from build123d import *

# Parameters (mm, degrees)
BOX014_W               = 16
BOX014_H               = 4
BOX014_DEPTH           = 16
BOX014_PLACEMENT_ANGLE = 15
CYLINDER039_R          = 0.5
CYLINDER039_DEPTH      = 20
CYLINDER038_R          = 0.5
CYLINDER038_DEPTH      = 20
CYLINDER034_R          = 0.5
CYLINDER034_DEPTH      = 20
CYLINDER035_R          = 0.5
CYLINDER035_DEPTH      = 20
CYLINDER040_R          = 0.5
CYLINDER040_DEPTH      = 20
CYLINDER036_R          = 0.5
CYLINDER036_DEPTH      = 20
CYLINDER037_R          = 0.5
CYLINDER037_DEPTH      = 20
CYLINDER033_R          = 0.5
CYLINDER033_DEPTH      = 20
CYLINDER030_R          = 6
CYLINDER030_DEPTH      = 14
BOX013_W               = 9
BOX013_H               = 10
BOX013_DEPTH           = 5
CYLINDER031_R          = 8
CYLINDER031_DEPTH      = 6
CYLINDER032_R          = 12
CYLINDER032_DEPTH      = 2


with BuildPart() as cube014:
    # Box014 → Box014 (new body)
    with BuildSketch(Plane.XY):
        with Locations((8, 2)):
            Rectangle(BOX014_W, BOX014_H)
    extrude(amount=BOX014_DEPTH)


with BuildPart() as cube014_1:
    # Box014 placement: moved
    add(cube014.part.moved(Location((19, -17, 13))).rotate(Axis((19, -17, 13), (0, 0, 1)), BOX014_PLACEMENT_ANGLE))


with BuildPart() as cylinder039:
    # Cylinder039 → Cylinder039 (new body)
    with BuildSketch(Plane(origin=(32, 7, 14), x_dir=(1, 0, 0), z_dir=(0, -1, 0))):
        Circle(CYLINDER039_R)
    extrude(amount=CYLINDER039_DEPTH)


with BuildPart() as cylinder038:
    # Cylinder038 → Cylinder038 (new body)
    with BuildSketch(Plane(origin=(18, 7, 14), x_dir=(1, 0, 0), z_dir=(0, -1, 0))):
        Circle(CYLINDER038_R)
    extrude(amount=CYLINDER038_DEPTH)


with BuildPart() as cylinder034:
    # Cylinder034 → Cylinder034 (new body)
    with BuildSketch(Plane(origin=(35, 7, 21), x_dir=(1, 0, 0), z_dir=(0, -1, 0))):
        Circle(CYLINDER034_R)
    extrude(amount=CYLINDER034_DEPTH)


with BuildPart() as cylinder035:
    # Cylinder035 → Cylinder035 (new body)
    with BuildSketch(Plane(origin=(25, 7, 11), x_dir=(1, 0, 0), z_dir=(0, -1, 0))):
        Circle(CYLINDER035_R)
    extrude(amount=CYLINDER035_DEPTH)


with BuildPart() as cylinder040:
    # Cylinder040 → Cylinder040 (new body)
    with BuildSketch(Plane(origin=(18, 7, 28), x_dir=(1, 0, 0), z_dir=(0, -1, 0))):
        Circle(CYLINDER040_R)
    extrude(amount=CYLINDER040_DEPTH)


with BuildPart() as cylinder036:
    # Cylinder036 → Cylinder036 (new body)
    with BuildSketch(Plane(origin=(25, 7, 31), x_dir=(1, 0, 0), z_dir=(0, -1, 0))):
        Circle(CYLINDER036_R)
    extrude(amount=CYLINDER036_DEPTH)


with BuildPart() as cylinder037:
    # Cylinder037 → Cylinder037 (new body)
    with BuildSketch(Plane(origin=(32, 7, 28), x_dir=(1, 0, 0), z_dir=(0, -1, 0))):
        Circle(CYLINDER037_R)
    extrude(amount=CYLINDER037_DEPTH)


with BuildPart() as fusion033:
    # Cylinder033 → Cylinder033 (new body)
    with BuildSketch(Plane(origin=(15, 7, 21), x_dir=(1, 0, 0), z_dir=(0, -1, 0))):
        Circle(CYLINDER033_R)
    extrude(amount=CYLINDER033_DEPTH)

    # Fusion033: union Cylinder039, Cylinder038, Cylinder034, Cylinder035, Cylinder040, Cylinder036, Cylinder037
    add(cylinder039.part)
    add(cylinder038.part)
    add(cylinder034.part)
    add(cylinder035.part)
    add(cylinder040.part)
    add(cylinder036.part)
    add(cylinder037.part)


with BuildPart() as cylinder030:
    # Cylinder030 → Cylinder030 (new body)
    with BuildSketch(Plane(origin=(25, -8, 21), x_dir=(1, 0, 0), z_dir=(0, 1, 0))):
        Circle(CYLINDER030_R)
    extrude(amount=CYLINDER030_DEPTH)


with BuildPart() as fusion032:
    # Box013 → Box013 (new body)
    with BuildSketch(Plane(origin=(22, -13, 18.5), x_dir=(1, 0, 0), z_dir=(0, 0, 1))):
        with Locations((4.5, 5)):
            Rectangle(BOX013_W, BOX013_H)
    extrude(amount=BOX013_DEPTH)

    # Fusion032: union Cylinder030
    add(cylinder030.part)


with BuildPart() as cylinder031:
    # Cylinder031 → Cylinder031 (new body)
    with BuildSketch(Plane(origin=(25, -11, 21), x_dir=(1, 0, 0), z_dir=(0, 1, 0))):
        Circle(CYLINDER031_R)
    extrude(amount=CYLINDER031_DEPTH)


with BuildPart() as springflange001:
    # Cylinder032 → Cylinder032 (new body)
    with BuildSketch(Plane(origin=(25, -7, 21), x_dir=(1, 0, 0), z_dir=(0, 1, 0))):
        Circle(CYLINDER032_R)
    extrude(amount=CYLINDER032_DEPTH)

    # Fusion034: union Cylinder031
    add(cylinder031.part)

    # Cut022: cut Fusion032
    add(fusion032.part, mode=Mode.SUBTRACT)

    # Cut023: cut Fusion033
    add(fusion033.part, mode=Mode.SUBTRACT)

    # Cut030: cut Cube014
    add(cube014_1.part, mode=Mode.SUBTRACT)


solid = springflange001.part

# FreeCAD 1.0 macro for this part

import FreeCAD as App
import Part
import Sketcher
from FreeCAD import Vector
Q = App.Units.Quantity


def add_polygon(sketch, points):
    """Adds a closed chain of lines whose ends are joined by coincident constraints."""
    first, n = sketch.GeometryCount, len(points)
    for a, b in zip(points, points[1:] + points[:1]):
        sketch.addGeometry(Part.LineSegment(App.Vector(*a, 0), App.Vector(*b, 0)), False)
    for i in range(n):
        sketch.addConstraint(Sketcher.Constraint("Coincident", first + i, 2, first + (i + 1) % n, 1))

doc = App.newDocument("Part")
params = doc.addObject("Spreadsheet::Sheet", "Params")
for row, (alias, value) in enumerate([
    ("sketch1_width", "16 mm"),
    ("sketch1_height", "4 mm"),
    ("pad1_length", "16 mm"),
    ("sketch2_diameter", "1 mm"),
    ("pad2_length", "20 mm"),
    ("sketch3_diameter", "1 mm"),
    ("pad3_length", "20 mm"),
    ("sketch4_diameter", "1 mm"),
    ("pad4_length", "20 mm"),
    ("sketch5_diameter", "1 mm"),
    ("pad5_length", "20 mm"),
    ("sketch6_diameter", "1 mm"),
    ("pad6_length", "20 mm"),
    ("sketch7_diameter", "1 mm"),
    ("pad7_length", "20 mm"),
    ("sketch8_diameter", "1 mm"),
    ("pad8_length", "20 mm"),
    ("sketch9_diameter", "1 mm"),
    ("pad9_length", "20 mm"),
    ("sketch10_diameter", "12 mm"),
    ("pad10_length", "14 mm"),
    ("sketch11_width", "9 mm"),
    ("sketch11_height", "10 mm"),
    ("pad11_length", "5 mm"),
    ("sketch12_diameter", "16 mm"),
    ("pad12_length", "6 mm"),
    ("sketch13_diameter", "24 mm"),
    ("pad13_length", "2 mm"),
], start=1):
    params.set(f"A{row}", alias)
    params.set(f"B{row}", "=" + value)
    params.setAlias(f"B{row}", alias)

body = doc.addObject("PartDesign::Body", "Body")

# Sketch on XY plane
sketch1 = doc.addObject("Sketcher::SketchObject", "Sketch")
body.addObject(sketch1)
sketch1.AttachmentSupport = (doc.XY_Plane, [""])
sketch1.MapMode = "FlatFace"
add_polygon(sketch1, [(0, 4), (0, 0), (16, 0), (16, 4)])  # lines 0-3
sketch1.addConstraint(Sketcher.Constraint("Vertical", 0))
sketch1.addConstraint(Sketcher.Constraint("Horizontal", 1))
sketch1.addConstraint(Sketcher.Constraint("Vertical", 2))
sketch1.addConstraint(Sketcher.Constraint("Horizontal", 3))
sketch1.addConstraint(Sketcher.Constraint("Coincident", 0, 2, -1, 1))
sketch1.addConstraint(Sketcher.Constraint("DistanceX", 1, 1, 1, 2, Q("16 mm")))
sketch1.addConstraint(Sketcher.Constraint("DistanceY", 0, 2, 0, 1, Q("4 mm")))
sketch1.setExpression("Constraints[9]", "Params.sketch1_width")
sketch1.setExpression("Constraints[10]", "Params.sketch1_height")
pad1 = doc.addObject("PartDesign::Pad", "Pad")
body.addObject(pad1)
pad1.Profile = sketch1
pad1.setExpression("Length", "Params.pad1_length")
body2 = doc.addObject("PartDesign::Body", "Body001")
doc.recompute()

body.Placement = App.Placement(Vector(19, -17, 13), App.Rotation(Vector(0, 0, 1), 15))
boolean = doc.addObject("PartDesign::Boolean", "Boolean")
body2.addObject(boolean)
boolean.Type = "Fuse"
boolean.addObjects([body])
body3 = doc.addObject("PartDesign::Body", "Body002")

# Sketch on XZ plane
sketch2 = doc.addObject("Sketcher::SketchObject", "Sketch001")
body3.addObject(sketch2)
sketch2.AttachmentSupport = (doc.getObject("XZ_Plane002"), [""])
sketch2.MapMode = "FlatFace"
sketch2.AttachmentOffset = App.Placement(Vector(0, 0, -7), App.Rotation())
sketch2.addGeometry(Part.Circle(Vector(32, 14, 0), Vector(0, 0, 1), 0.5), False)
sketch2.addConstraint(Sketcher.Constraint("Diameter", 0, Q("1 mm")))
sketch2.addConstraint(Sketcher.Constraint("DistanceX", -1, 1, 0, 3, Q("32 mm")))
sketch2.addConstraint(Sketcher.Constraint("DistanceY", -1, 1, 0, 3, Q("14 mm")))
sketch2.setExpression("Constraints[0]", "Params.sketch2_diameter")
pad2 = doc.addObject("PartDesign::Pad", "Pad001")
body3.addObject(pad2)
pad2.Profile = sketch2
pad2.setExpression("Length", "Params.pad2_length")
body4 = doc.addObject("PartDesign::Body", "Body003")

# Sketch on XZ plane
sketch3 = doc.addObject("Sketcher::SketchObject", "Sketch002")
body4.addObject(sketch3)
sketch3.AttachmentSupport = (doc.getObject("XZ_Plane003"), [""])
sketch3.MapMode = "FlatFace"
sketch3.AttachmentOffset = App.Placement(Vector(0, 0, -7), App.Rotation())
sketch3.addGeometry(Part.Circle(Vector(18, 14, 0), Vector(0, 0, 1), 0.5), False)
sketch3.addConstraint(Sketcher.Constraint("Diameter", 0, Q("1 mm")))
sketch3.addConstraint(Sketcher.Constraint("DistanceX", -1, 1, 0, 3, Q("18 mm")))
sketch3.addConstraint(Sketcher.Constraint("DistanceY", -1, 1, 0, 3, Q("14 mm")))
sketch3.setExpression("Constraints[0]", "Params.sketch3_diameter")
pad3 = doc.addObject("PartDesign::Pad", "Pad002")
body4.addObject(pad3)
pad3.Profile = sketch3
pad3.setExpression("Length", "Params.pad3_length")
body5 = doc.addObject("PartDesign::Body", "Body004")

# Sketch on XZ plane
sketch4 = doc.addObject("Sketcher::SketchObject", "Sketch003")
body5.addObject(sketch4)
sketch4.AttachmentSupport = (doc.getObject("XZ_Plane004"), [""])
sketch4.MapMode = "FlatFace"
sketch4.AttachmentOffset = App.Placement(Vector(0, 0, -7), App.Rotation())
sketch4.addGeometry(Part.Circle(Vector(35, 21, 0), Vector(0, 0, 1), 0.5), False)
sketch4.addConstraint(Sketcher.Constraint("Diameter", 0, Q("1 mm")))
sketch4.addConstraint(Sketcher.Constraint("DistanceX", -1, 1, 0, 3, Q("35 mm")))
sketch4.addConstraint(Sketcher.Constraint("DistanceY", -1, 1, 0, 3, Q("21 mm")))
sketch4.setExpression("Constraints[0]", "Params.sketch4_diameter")
pad4 = doc.addObject("PartDesign::Pad", "Pad003")
body5.addObject(pad4)
pad4.Profile = sketch4
pad4.setExpression("Length", "Params.pad4_length")
body6 = doc.addObject("PartDesign::Body", "Body005")

# Sketch on XZ plane
sketch5 = doc.addObject("Sketcher::SketchObject", "Sketch004")
body6.addObject(sketch5)
sketch5.AttachmentSupport = (doc.getObject("XZ_Plane005"), [""])
sketch5.MapMode = "FlatFace"
sketch5.AttachmentOffset = App.Placement(Vector(0, 0, -7), App.Rotation())
sketch5.addGeometry(Part.Circle(Vector(25, 11, 0), Vector(0, 0, 1), 0.5), False)
sketch5.addConstraint(Sketcher.Constraint("Diameter", 0, Q("1 mm")))
sketch5.addConstraint(Sketcher.Constraint("DistanceX", -1, 1, 0, 3, Q("25 mm")))
sketch5.addConstraint(Sketcher.Constraint("DistanceY", -1, 1, 0, 3, Q("11 mm")))
sketch5.setExpression("Constraints[0]", "Params.sketch5_diameter")
pad5 = doc.addObject("PartDesign::Pad", "Pad004")
body6.addObject(pad5)
pad5.Profile = sketch5
pad5.setExpression("Length", "Params.pad5_length")
body7 = doc.addObject("PartDesign::Body", "Body006")

# Sketch on XZ plane
sketch6 = doc.addObject("Sketcher::SketchObject", "Sketch005")
body7.addObject(sketch6)
sketch6.AttachmentSupport = (doc.getObject("XZ_Plane006"), [""])
sketch6.MapMode = "FlatFace"
sketch6.AttachmentOffset = App.Placement(Vector(0, 0, -7), App.Rotation())
sketch6.addGeometry(Part.Circle(Vector(18, 28, 0), Vector(0, 0, 1), 0.5), False)
sketch6.addConstraint(Sketcher.Constraint("Diameter", 0, Q("1 mm")))
sketch6.addConstraint(Sketcher.Constraint("DistanceX", -1, 1, 0, 3, Q("18 mm")))
sketch6.addConstraint(Sketcher.Constraint("DistanceY", -1, 1, 0, 3, Q("28 mm")))
sketch6.setExpression("Constraints[0]", "Params.sketch6_diameter")
pad6 = doc.addObject("PartDesign::Pad", "Pad005")
body7.addObject(pad6)
pad6.Profile = sketch6
pad6.setExpression("Length", "Params.pad6_length")
body8 = doc.addObject("PartDesign::Body", "Body007")

# Sketch on XZ plane
sketch7 = doc.addObject("Sketcher::SketchObject", "Sketch006")
body8.addObject(sketch7)
sketch7.AttachmentSupport = (doc.getObject("XZ_Plane007"), [""])
sketch7.MapMode = "FlatFace"
sketch7.AttachmentOffset = App.Placement(Vector(0, 0, -7), App.Rotation())
sketch7.addGeometry(Part.Circle(Vector(25, 31, 0), Vector(0, 0, 1), 0.5), False)
sketch7.addConstraint(Sketcher.Constraint("Diameter", 0, Q("1 mm")))
sketch7.addConstraint(Sketcher.Constraint("DistanceX", -1, 1, 0, 3, Q("25 mm")))
sketch7.addConstraint(Sketcher.Constraint("DistanceY", -1, 1, 0, 3, Q("31 mm")))
sketch7.setExpression("Constraints[0]", "Params.sketch7_diameter")
pad7 = doc.addObject("PartDesign::Pad", "Pad006")
body8.addObject(pad7)
pad7.Profile = sketch7
pad7.setExpression("Length", "Params.pad7_length")
body9 = doc.addObject("PartDesign::Body", "Body008")

# Sketch on XZ plane
sketch8 = doc.addObject("Sketcher::SketchObject", "Sketch007")
body9.addObject(sketch8)
sketch8.AttachmentSupport = (doc.getObject("XZ_Plane008"), [""])
sketch8.MapMode = "FlatFace"
sketch8.AttachmentOffset = App.Placement(Vector(0, 0, -7), App.Rotation())
sketch8.addGeometry(Part.Circle(Vector(32, 28, 0), Vector(0, 0, 1), 0.5), False)
sketch8.addConstraint(Sketcher.Constraint("Diameter", 0, Q("1 mm")))
sketch8.addConstraint(Sketcher.Constraint("DistanceX", -1, 1, 0, 3, Q("32 mm")))
sketch8.addConstraint(Sketcher.Constraint("DistanceY", -1, 1, 0, 3, Q("28 mm")))
sketch8.setExpression("Constraints[0]", "Params.sketch8_diameter")
pad8 = doc.addObject("PartDesign::Pad", "Pad007")
body9.addObject(pad8)
pad8.Profile = sketch8
pad8.setExpression("Length", "Params.pad8_length")
body10 = doc.addObject("PartDesign::Body", "Body009")
body10.AllowCompound = True

# Sketch on XZ plane
sketch9 = doc.addObject("Sketcher::SketchObject", "Sketch008")
body10.addObject(sketch9)
sketch9.AttachmentSupport = (doc.getObject("XZ_Plane009"), [""])
sketch9.MapMode = "FlatFace"
sketch9.AttachmentOffset = App.Placement(Vector(0, 0, -7), App.Rotation())
sketch9.addGeometry(Part.Circle(Vector(15, 21, 0), Vector(0, 0, 1), 0.5), False)
sketch9.addConstraint(Sketcher.Constraint("Diameter", 0, Q("1 mm")))
sketch9.addConstraint(Sketcher.Constraint("DistanceX", -1, 1, 0, 3, Q("15 mm")))
sketch9.addConstraint(Sketcher.Constraint("DistanceY", -1, 1, 0, 3, Q("21 mm")))
sketch9.setExpression("Constraints[0]", "Params.sketch9_diameter")
pad9 = doc.addObject("PartDesign::Pad", "Pad008")
body10.addObject(pad9)
pad9.Profile = sketch9
pad9.setExpression("Length", "Params.pad9_length")
doc.recompute()

boolean2 = doc.addObject("PartDesign::Boolean", "Boolean001")
body10.addObject(boolean2)
boolean2.Type = "Fuse"
boolean2.addObjects([body3])
doc.recompute()

boolean3 = doc.addObject("PartDesign::Boolean", "Boolean002")
body10.addObject(boolean3)
boolean3.Type = "Fuse"
boolean3.addObjects([body4])
doc.recompute()

boolean4 = doc.addObject("PartDesign::Boolean", "Boolean003")
body10.addObject(boolean4)
boolean4.Type = "Fuse"
boolean4.addObjects([body5])
doc.recompute()

boolean5 = doc.addObject("PartDesign::Boolean", "Boolean004")
body10.addObject(boolean5)
boolean5.Type = "Fuse"
boolean5.addObjects([body6])
doc.recompute()

boolean6 = doc.addObject("PartDesign::Boolean", "Boolean005")
body10.addObject(boolean6)
boolean6.Type = "Fuse"
boolean6.addObjects([body7])
doc.recompute()

boolean7 = doc.addObject("PartDesign::Boolean", "Boolean006")
body10.addObject(boolean7)
boolean7.Type = "Fuse"
boolean7.addObjects([body8])
doc.recompute()

boolean8 = doc.addObject("PartDesign::Boolean", "Boolean007")
body10.addObject(boolean8)
boolean8.Type = "Fuse"
boolean8.addObjects([body9])
body11 = doc.addObject("PartDesign::Body", "Body010")

# Sketch on XZ plane
sketch10 = doc.addObject("Sketcher::SketchObject", "Sketch009")
body11.addObject(sketch10)
sketch10.AttachmentSupport = (doc.getObject("XZ_Plane010"), [""])
sketch10.MapMode = "FlatFace"
sketch10.AttachmentOffset = App.Placement(Vector(0, 0, 8), App.Rotation())
sketch10.addGeometry(Part.Circle(Vector(25, 21, 0), Vector(0, 0, 1), 6), False)
sketch10.addConstraint(Sketcher.Constraint("Diameter", 0, Q("12 mm")))
sketch10.addConstraint(Sketcher.Constraint("DistanceX", -1, 1, 0, 3, Q("25 mm")))
sketch10.addConstraint(Sketcher.Constraint("DistanceY", -1, 1, 0, 3, Q("21 mm")))
sketch10.setExpression("Constraints[0]", "Params.sketch10_diameter")
pad10 = doc.addObject("PartDesign::Pad", "Pad009")
body11.addObject(pad10)
pad10.Profile = sketch10
pad10.setExpression("Length", "Params.pad10_length")
pad10.Reversed = True
body12 = doc.addObject("PartDesign::Body", "Body011")

# Sketch on XY plane
sketch11 = doc.addObject("Sketcher::SketchObject", "Sketch010")
body12.addObject(sketch11)
sketch11.AttachmentSupport = (doc.getObject("XY_Plane011"), [""])
sketch11.MapMode = "FlatFace"
sketch11.AttachmentOffset = App.Placement(Vector(0, 0, 18.5), App.Rotation())
add_polygon(sketch11, [(22, -3), (22, -13), (31, -13), (31, -3)])  # lines 0-3
sketch11.addConstraint(Sketcher.Constraint("Vertical", 0))
sketch11.addConstraint(Sketcher.Constraint("Horizontal", 1))
sketch11.addConstraint(Sketcher.Constraint("Vertical", 2))
sketch11.addConstraint(Sketcher.Constraint("Horizontal", 3))
sketch11.addConstraint(Sketcher.Constraint("DistanceX", 1, 1, 1, 2, Q("9 mm")))
sketch11.addConstraint(Sketcher.Constraint("DistanceY", 0, 2, 0, 1, Q("10 mm")))
sketch11.addConstraint(Sketcher.Constraint("DistanceX", -1, 1, 0, 2, Q("22 mm")))
sketch11.addConstraint(Sketcher.Constraint("DistanceY", 0, 2, -1, 1, Q("13 mm")))
sketch11.setExpression("Constraints[8]", "Params.sketch11_width")
sketch11.setExpression("Constraints[9]", "Params.sketch11_height")
pad11 = doc.addObject("PartDesign::Pad", "Pad010")
body12.addObject(pad11)
pad11.Profile = sketch11
pad11.setExpression("Length", "Params.pad11_length")
doc.recompute()

boolean9 = doc.addObject("PartDesign::Boolean", "Boolean008")
body12.addObject(boolean9)
boolean9.Type = "Fuse"
boolean9.addObjects([body11])
body13 = doc.addObject("PartDesign::Body", "Body012")

# Sketch on XZ plane
sketch12 = doc.addObject("Sketcher::SketchObject", "Sketch011")
body13.addObject(sketch12)
sketch12.AttachmentSupport = (doc.getObject("XZ_Plane012"), [""])
sketch12.MapMode = "FlatFace"
sketch12.AttachmentOffset = App.Placement(Vector(0, 0, 11), App.Rotation())
sketch12.addGeometry(Part.Circle(Vector(25, 21, 0), Vector(0, 0, 1), 8), False)
sketch12.addConstraint(Sketcher.Constraint("Diameter", 0, Q("16 mm")))
sketch12.addConstraint(Sketcher.Constraint("DistanceX", -1, 1, 0, 3, Q("25 mm")))
sketch12.addConstraint(Sketcher.Constraint("DistanceY", -1, 1, 0, 3, Q("21 mm")))
sketch12.setExpression("Constraints[0]", "Params.sketch12_diameter")
pad12 = doc.addObject("PartDesign::Pad", "Pad011")
body13.addObject(pad12)
pad12.Profile = sketch12
pad12.setExpression("Length", "Params.pad12_length")
pad12.Reversed = True
body14 = doc.addObject("PartDesign::Body", "Body013")

# Sketch on XZ plane
sketch13 = doc.addObject("Sketcher::SketchObject", "Sketch012")
body14.addObject(sketch13)
sketch13.AttachmentSupport = (doc.getObject("XZ_Plane013"), [""])
sketch13.MapMode = "FlatFace"
sketch13.AttachmentOffset = App.Placement(Vector(0, 0, 7), App.Rotation())
sketch13.addGeometry(Part.Circle(Vector(25, 21, 0), Vector(0, 0, 1), 12), False)
sketch13.addConstraint(Sketcher.Constraint("Diameter", 0, Q("24 mm")))
sketch13.addConstraint(Sketcher.Constraint("DistanceX", -1, 1, 0, 3, Q("25 mm")))
sketch13.addConstraint(Sketcher.Constraint("DistanceY", -1, 1, 0, 3, Q("21 mm")))
sketch13.setExpression("Constraints[0]", "Params.sketch13_diameter")
pad13 = doc.addObject("PartDesign::Pad", "Pad012")
body14.addObject(pad13)
pad13.Profile = sketch13
pad13.setExpression("Length", "Params.pad13_length")
pad13.Reversed = True
doc.recompute()

boolean10 = doc.addObject("PartDesign::Boolean", "Boolean009")
body14.addObject(boolean10)
boolean10.Type = "Fuse"
boolean10.addObjects([body13])
doc.recompute()

boolean11 = doc.addObject("PartDesign::Boolean", "Boolean010")
body14.addObject(boolean11)
boolean11.Type = "Cut"
boolean11.addObjects([body12])
doc.recompute()

boolean12 = doc.addObject("PartDesign::Boolean", "Boolean011")
body14.addObject(boolean12)
boolean12.Type = "Cut"
boolean12.addObjects([body10])
doc.recompute()

boolean13 = doc.addObject("PartDesign::Boolean", "Boolean012")
body14.addObject(boolean13)
boolean13.Type = "Cut"
boolean13.addObjects([body2])

doc.recompute()
